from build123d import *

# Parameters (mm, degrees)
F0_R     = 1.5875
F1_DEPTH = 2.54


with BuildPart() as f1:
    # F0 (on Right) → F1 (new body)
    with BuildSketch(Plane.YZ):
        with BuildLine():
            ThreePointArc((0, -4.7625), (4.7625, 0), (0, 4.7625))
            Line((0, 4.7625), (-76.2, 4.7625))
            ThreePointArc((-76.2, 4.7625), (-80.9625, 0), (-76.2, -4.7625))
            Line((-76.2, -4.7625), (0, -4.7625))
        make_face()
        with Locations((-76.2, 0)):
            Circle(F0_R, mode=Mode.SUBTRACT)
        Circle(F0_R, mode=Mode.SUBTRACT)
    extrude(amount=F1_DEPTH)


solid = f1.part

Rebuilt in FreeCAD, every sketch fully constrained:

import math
import FreeCAD as App
import Part
import Sketcher
from FreeCAD import Vector
Q = App.Units.Quantity

doc = App.newDocument("Part")
params = doc.addObject("Spreadsheet::Sheet", "Params")
for row, (alias, value) in enumerate([
    ("sketch1_width", "3 in"),
    ("sketch1_diameter", "0.125 in"),
    ("sketch1_radius", "0.1875 in"),
    ("pad1_length", "0.1 in"),
], start=1):
    params.set(f"A{row}", alias)
    params.set(f"B{row}", "=" + value)
    params.setAlias(f"B{row}", alias)

body = doc.addObject("PartDesign::Body", "Body")

sketch1 = doc.addObject("Sketcher::SketchObject", "Sketch")
body.addObject(sketch1)
sketch1.AttachmentSupport = (doc.YZ_Plane, [""])
sketch1.MapMode = "FlatFace"
sketch1.addGeometry(Part.ArcOfCircle(Part.Circle(Vector(0, 0, 0), Vector(0, 0, 1), 4.8), math.radians(-90), math.radians(90)), False)
sketch1.addGeometry(Part.LineSegment(Vector(0, 4.8, 0), Vector(-76.2, 4.8, 0)), False)
sketch1.addGeometry(Part.ArcOfCircle(Part.Circle(Vector(-76.2, 0, 0), Vector(0, 0, 1), 4.8), math.radians(90), math.radians(270)), False)
sketch1.addGeometry(Part.LineSegment(Vector(-76.2, -4.8, 0), Vector(0, -4.8, 0)), False)
sketch1.addGeometry(Part.Circle(Vector(-76.2, 0, 0), Vector(0, 0, 1), 1.6), False)
sketch1.addGeometry(Part.Circle(Vector(0, 0, 0), Vector(0, 0, 1), 1.6), False)
sketch1.addConstraint(Sketcher.Constraint("Tangent", 0, 2, 1, 1))
sketch1.addConstraint(Sketcher.Constraint("Tangent", 1, 2, 2, 1))
sketch1.addConstraint(Sketcher.Constraint("Tangent", 2, 2, 3, 1))
sketch1.addConstraint(Sketcher.Constraint("Tangent", 3, 2, 0, 1))
sketch1.addConstraint(Sketcher.Constraint("Horizontal", 1))
sketch1.addConstraint(Sketcher.Constraint("Horizontal", 3))
sketch1.addConstraint(Sketcher.Constraint("Coincident", 0, 3, -1, 1))
sketch1.addConstraint(Sketcher.Constraint("Coincident", 5, 3, -1, 1))
sketch1.addConstraint(Sketcher.Constraint("Coincident", 4, 3, 2, 3))
sketch1.addConstraint(Sketcher.Constraint("Equal", 4, 5))
sketch1.addConstraint(Sketcher.Constraint("DistanceX", 1, 2, 1, 1, Q("3 in")))
sketch1.addConstraint(Sketcher.Constraint("Diameter", 4, Q("0.125 in")))
sketch1.addConstraint(Sketcher.Constraint("Radius", 0, Q("0.1875 in")))
sketch1.setExpression("Constraints[10]", "Params.sketch1_width")
sketch1.setExpression("Constraints[11]", "Params.sketch1_diameter")
sketch1.setExpression("Constraints[12]", "Params.sketch1_radius")
pad1 = doc.addObject("PartDesign::Pad", "Pad")
body.addObject(pad1)
pad1.Profile = sketch1
pad1.setExpression("Length", "Params.pad1_length")

doc.recompute()
